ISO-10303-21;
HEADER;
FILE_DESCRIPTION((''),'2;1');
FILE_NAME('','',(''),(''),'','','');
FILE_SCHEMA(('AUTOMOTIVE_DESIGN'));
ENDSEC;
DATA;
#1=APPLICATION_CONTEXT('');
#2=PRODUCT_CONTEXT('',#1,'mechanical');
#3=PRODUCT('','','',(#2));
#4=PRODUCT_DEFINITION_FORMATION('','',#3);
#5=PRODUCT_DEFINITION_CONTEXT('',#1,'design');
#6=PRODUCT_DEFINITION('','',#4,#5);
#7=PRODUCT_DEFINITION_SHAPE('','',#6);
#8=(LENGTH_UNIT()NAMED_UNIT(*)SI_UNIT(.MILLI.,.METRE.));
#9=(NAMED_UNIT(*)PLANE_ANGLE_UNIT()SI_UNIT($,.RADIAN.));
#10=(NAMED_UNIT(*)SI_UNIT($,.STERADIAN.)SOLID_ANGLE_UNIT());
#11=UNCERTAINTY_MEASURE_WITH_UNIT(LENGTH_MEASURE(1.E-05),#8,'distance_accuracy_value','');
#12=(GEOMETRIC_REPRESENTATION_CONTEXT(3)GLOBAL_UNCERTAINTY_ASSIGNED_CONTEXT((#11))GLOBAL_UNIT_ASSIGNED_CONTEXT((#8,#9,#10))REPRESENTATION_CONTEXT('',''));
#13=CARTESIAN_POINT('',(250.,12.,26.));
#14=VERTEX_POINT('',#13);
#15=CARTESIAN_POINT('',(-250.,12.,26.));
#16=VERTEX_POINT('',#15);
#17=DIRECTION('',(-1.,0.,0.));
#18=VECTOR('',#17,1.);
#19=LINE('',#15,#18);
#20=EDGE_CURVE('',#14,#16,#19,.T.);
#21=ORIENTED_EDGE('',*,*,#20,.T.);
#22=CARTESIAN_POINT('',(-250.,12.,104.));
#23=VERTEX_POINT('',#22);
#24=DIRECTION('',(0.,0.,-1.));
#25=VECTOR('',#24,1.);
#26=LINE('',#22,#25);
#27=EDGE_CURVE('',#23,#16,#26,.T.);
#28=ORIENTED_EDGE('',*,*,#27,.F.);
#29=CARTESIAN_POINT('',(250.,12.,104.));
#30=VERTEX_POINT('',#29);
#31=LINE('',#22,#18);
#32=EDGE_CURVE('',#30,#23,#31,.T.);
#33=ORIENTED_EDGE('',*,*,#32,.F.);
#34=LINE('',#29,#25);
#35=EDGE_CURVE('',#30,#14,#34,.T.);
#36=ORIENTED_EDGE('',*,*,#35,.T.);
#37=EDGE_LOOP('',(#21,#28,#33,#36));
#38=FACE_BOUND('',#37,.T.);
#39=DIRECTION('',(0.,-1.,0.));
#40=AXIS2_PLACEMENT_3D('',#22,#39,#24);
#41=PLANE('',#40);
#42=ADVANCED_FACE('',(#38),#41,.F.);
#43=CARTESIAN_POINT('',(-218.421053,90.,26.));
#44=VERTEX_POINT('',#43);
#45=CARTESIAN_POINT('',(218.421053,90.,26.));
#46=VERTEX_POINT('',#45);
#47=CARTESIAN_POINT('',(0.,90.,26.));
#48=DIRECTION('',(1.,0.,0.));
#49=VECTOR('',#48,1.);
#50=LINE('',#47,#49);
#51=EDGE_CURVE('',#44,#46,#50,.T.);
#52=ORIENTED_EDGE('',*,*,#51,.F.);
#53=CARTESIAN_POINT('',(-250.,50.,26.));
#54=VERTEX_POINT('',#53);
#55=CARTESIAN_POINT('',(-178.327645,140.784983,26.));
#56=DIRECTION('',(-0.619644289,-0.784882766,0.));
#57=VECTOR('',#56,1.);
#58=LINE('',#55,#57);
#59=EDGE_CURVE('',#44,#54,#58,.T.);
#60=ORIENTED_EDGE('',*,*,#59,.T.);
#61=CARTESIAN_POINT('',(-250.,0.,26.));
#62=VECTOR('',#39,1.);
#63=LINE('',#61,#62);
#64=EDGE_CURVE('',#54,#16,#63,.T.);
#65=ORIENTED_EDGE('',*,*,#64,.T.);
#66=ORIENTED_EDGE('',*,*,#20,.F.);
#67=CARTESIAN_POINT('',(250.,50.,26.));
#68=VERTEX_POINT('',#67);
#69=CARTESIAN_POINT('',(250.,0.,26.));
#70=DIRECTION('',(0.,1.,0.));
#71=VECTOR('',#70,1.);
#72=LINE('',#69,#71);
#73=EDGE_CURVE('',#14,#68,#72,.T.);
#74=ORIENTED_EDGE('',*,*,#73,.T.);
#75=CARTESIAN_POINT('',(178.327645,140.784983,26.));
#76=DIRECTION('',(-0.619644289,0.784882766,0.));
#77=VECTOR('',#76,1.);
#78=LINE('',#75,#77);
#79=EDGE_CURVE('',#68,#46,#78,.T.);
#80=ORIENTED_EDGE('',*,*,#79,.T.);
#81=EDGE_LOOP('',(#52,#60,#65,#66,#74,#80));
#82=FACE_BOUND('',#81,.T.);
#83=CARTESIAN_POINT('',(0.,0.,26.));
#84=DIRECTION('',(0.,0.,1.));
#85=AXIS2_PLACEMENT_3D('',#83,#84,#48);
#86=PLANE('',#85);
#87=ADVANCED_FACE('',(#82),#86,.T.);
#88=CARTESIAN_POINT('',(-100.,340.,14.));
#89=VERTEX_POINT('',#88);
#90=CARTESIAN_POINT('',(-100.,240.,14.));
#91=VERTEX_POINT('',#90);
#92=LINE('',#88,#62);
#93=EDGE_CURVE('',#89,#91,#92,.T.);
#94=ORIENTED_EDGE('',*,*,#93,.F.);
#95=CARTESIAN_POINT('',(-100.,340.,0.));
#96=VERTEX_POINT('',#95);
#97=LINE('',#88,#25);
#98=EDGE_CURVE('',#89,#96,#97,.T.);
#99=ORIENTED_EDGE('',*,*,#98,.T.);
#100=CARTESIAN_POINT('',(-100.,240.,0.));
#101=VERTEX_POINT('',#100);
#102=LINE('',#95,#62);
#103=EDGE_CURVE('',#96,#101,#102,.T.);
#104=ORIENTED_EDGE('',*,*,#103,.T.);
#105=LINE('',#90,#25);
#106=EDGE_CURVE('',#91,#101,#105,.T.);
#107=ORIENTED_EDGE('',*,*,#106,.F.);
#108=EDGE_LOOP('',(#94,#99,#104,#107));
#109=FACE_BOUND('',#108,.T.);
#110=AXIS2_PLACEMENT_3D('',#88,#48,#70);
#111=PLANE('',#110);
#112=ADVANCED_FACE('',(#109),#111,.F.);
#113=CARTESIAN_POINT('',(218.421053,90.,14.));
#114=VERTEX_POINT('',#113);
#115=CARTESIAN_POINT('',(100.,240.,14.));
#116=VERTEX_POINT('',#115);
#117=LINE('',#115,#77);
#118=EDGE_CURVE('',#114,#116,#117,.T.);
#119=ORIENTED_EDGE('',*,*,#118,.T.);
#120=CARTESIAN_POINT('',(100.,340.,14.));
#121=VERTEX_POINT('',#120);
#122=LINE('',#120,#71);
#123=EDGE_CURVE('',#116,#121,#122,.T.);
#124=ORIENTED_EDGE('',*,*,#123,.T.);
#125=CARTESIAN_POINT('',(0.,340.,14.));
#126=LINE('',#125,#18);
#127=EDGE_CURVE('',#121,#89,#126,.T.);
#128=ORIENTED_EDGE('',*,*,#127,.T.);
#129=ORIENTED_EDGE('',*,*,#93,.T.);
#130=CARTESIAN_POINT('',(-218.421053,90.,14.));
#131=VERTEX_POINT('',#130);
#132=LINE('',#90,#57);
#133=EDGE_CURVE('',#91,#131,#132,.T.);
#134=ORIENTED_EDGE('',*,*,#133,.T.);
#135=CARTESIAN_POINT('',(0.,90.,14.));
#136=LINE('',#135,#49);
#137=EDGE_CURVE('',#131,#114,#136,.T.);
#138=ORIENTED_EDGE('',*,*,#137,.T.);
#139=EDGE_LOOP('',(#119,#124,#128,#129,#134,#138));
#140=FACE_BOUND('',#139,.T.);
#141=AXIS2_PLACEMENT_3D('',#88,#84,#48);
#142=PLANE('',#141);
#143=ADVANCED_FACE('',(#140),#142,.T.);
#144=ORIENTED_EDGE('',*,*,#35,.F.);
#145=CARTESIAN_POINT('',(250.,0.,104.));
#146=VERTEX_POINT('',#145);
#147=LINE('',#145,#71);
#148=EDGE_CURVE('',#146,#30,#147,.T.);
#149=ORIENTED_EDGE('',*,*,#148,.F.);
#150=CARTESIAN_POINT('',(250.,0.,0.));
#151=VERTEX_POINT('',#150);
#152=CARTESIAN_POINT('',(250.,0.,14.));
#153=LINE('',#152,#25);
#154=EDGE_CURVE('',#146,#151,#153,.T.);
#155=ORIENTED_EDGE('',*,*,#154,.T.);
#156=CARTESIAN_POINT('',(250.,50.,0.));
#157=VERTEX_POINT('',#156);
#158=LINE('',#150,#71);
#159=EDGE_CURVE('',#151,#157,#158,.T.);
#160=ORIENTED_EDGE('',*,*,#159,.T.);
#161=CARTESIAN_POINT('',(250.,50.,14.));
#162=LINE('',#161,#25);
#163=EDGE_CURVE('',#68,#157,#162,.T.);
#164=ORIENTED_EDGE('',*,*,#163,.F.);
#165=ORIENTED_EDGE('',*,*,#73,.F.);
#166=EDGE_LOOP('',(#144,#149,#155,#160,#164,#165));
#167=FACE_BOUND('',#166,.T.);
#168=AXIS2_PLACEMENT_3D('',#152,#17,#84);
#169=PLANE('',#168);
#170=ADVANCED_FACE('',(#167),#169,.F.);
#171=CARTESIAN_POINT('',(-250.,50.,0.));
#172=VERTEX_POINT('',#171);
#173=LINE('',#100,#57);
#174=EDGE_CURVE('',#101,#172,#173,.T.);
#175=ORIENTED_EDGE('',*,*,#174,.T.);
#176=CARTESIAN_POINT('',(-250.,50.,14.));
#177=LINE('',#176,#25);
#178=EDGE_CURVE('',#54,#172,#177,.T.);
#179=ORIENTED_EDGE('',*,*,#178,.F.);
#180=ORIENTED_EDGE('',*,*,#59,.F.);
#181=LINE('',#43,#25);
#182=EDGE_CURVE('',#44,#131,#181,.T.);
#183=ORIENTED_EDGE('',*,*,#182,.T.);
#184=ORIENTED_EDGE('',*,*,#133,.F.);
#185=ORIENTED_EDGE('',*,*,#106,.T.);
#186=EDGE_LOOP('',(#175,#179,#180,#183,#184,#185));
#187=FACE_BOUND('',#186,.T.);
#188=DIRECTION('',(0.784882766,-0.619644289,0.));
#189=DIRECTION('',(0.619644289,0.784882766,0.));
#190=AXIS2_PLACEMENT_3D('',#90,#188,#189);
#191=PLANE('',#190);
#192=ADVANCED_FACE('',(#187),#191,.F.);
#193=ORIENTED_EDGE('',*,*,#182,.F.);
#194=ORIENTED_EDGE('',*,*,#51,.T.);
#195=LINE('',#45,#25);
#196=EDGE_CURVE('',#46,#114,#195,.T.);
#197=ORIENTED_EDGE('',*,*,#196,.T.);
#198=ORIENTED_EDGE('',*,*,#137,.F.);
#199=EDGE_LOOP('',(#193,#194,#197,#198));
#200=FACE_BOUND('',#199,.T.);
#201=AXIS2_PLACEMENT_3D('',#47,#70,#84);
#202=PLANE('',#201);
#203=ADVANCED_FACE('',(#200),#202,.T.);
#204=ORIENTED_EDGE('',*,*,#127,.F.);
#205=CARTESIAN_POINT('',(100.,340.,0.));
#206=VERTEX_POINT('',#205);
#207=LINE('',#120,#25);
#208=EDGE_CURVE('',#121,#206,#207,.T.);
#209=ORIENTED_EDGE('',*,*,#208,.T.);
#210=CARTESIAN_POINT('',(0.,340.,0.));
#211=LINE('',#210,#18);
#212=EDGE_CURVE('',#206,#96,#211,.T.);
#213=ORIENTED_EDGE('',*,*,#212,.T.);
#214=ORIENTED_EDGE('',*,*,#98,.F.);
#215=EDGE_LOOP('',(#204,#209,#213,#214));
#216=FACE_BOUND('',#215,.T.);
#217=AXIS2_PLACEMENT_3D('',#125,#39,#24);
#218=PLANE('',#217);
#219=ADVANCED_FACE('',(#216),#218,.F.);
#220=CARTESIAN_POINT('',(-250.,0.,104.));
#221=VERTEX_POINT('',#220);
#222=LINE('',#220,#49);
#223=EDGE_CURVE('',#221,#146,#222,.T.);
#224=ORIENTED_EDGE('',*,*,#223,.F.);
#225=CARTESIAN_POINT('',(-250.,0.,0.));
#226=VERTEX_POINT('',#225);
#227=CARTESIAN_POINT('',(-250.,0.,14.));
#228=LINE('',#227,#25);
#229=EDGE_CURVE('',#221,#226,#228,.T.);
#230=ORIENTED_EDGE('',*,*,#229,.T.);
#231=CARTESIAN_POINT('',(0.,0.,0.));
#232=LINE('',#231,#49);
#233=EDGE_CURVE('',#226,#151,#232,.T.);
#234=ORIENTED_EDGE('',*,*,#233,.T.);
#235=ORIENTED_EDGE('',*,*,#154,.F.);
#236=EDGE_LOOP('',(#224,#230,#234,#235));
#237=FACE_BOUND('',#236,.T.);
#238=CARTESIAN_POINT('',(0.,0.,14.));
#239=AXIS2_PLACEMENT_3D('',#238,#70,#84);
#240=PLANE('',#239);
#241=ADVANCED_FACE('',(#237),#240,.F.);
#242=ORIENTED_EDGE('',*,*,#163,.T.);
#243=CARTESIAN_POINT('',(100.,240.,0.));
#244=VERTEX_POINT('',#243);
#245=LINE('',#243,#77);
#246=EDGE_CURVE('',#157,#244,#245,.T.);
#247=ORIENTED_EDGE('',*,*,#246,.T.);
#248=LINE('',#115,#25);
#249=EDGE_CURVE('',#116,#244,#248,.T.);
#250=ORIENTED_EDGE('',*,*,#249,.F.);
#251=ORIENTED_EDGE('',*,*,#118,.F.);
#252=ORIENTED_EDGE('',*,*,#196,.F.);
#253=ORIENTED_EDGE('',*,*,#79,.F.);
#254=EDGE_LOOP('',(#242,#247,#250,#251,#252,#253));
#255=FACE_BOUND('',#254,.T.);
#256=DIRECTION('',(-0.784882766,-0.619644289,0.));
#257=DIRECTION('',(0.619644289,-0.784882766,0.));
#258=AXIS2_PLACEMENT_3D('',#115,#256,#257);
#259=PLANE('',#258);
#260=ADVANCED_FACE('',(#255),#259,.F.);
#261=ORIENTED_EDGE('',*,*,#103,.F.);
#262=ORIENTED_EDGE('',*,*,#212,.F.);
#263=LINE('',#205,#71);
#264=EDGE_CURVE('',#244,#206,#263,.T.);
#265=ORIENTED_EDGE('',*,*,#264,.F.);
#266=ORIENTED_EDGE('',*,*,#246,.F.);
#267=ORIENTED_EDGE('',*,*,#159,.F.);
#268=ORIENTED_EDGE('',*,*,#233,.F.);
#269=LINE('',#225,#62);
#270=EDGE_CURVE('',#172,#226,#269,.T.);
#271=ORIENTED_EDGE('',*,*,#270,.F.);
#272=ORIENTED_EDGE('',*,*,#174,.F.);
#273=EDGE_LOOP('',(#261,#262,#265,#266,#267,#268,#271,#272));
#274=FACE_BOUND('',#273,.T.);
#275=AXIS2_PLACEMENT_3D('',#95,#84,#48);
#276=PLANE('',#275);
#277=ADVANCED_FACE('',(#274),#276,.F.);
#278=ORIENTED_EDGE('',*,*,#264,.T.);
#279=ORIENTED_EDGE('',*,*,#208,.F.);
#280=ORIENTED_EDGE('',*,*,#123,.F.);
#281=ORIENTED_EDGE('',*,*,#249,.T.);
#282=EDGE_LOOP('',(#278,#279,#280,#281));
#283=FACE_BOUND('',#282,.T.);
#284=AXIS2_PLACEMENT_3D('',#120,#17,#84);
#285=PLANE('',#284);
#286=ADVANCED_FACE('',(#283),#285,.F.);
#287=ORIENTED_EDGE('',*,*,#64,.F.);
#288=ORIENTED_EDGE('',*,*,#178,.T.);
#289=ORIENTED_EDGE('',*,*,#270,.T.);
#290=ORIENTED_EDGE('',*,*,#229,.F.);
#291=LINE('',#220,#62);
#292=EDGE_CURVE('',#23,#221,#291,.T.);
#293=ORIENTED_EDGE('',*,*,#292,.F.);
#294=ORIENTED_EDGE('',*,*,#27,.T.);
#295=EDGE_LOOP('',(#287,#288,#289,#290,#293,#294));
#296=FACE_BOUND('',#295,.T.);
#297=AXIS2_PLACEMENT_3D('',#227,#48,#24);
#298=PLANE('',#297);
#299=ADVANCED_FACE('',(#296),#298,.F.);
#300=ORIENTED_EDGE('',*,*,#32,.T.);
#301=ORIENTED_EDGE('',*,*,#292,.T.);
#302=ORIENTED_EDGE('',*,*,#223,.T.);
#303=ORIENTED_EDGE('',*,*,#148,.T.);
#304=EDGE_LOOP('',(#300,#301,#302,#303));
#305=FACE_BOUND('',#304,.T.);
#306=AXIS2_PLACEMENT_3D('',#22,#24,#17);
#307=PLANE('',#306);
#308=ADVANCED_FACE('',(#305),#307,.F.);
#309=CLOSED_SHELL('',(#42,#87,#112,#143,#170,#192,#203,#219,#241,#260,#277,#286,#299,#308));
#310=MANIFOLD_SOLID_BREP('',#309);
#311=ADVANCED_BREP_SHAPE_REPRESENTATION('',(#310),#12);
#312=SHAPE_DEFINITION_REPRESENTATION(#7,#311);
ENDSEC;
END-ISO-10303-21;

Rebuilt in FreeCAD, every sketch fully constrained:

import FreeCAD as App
import Part
import Sketcher
Q = App.Units.Quantity


def add_polygon(sketch, points):
    """Adds a closed chain of lines whose ends are joined by coincident constraints."""
    first, n = sketch.GeometryCount, len(points)
    for a, b in zip(points, points[1:] + points[:1]):
        sketch.addGeometry(Part.LineSegment(App.Vector(*a, 0), App.Vector(*b, 0)), False)
    for i in range(n):
        sketch.addConstraint(Sketcher.Constraint("Coincident", first + i, 2, first + (i + 1) % n, 1))

doc = App.newDocument("Part")
body = doc.addObject("PartDesign::Body", "Body")

sketch1 = body.newObject("Sketcher::SketchObject", "Sketch")
sketch1.AttachmentSupport = (doc.getObject("XY_Plane"), [""])
sketch1.MapMode = "FlatFace"
add_polygon(sketch1, [(250, 0), (250, 50), (100, 240), (100, 340), (-100, 340), (-100, 240), (-250, 50), (-250, 0)])
sketch1.addConstraint([
    Sketcher.Constraint("Vertical", 0),
    Sketcher.Constraint("Vertical", 2),
    Sketcher.Constraint("Horizontal", 3),
    Sketcher.Constraint("Vertical", 4),
    Sketcher.Constraint("Vertical", 6),
    Sketcher.Constraint("Horizontal", 7),
    Sketcher.Constraint("Symmetric", 6, 2, 7, 2, -1, 1),
    Sketcher.Constraint("Symmetric", 1, 2, 4, 2, -2),
    Sketcher.Constraint("Horizontal", 0, 2, 5, 2),
    Sketcher.Constraint("DistanceX", 3, 2, 3, 1, Q("200 mm")),
    Sketcher.Constraint("DistanceX", 7, 1, 7, 2, Q("500 mm")),
    Sketcher.Constraint("DistanceY", 0, 1, 0, 2, Q("50 mm")),
    Sketcher.Constraint("DistanceY", 2, 1, 2, 2, Q("100 mm")),
    Sketcher.Constraint("DistanceY", -1, 1, 1, 2, Q("240 mm")),
])
pad1 = body.newObject("PartDesign::Pad", "Pad")
pad1.Profile = sketch1
pad1.Length = 14

sketch2 = body.newObject("Sketcher::SketchObject", "Sketch001")
sketch2.AttachmentSupport = (doc.getObject("XY_Plane"), [""])
sketch2.MapMode = "FlatFace"
sketch2.AttachmentOffset = App.Placement(App.Vector(0, 0, 14), App.Rotation())
add_polygon(sketch2, [(218, 90), (-218, 90), (-250, 50), (-250, 0), (250, 0), (250, 50)])
sketch2.addConstraint([
    Sketcher.Constraint("Horizontal", 0),
    Sketcher.Constraint("Vertical", 2),
    Sketcher.Constraint("Horizontal", 3),
    Sketcher.Constraint("Vertical", 4),
    Sketcher.Constraint("Symmetric", 2, 2, 3, 2, -1, 1),
    Sketcher.Constraint("Horizontal", 1, 2, 4, 2),
    Sketcher.Constraint("Equal", 1, 5),
    Sketcher.Constraint("DistanceX", 3, 1, 3, 2, Q("500 mm")),
    Sketcher.Constraint("DistanceY", 2, 2, 2, 1, Q("50 mm")),
    Sketcher.Constraint("DistanceY", -1, 1, 0, 2, Q("90 mm")),
    Sketcher.Constraint("DistanceX", 0, 2, 0, 1, Q("436.842105 mm")),
])
pad2 = body.newObject("PartDesign::Pad", "Pad001")
pad2.Profile = sketch2
pad2.Length = 12

sketch3 = body.newObject("Sketcher::SketchObject", "Sketch002")
sketch3.AttachmentSupport = (doc.getObject("XY_Plane"), [""])
sketch3.MapMode = "FlatFace"
sketch3.AttachmentOffset = App.Placement(App.Vector(0, 0, 26), App.Rotation())
add_polygon(sketch3, [(-250, 12), (-250, 0), (250, 0), (250, 12)])
sketch3.addConstraint([
    Sketcher.Constraint("Vertical", 0),
    Sketcher.Constraint("Horizontal", 1),
    Sketcher.Constraint("Vertical", 2),
    Sketcher.Constraint("Horizontal", 3),
    Sketcher.Constraint("Symmetric", 0, 2, 1, 2, -1, 1),
    Sketcher.Constraint("DistanceX", 1, 1, 1, 2, Q("500 mm")),
    Sketcher.Constraint("DistanceY", 0, 2, 0, 1, Q("12 mm")),
])
pad3 = body.newObject("PartDesign::Pad", "Pad002")
pad3.Profile = sketch3
pad3.Length = 78

doc.recompute()
